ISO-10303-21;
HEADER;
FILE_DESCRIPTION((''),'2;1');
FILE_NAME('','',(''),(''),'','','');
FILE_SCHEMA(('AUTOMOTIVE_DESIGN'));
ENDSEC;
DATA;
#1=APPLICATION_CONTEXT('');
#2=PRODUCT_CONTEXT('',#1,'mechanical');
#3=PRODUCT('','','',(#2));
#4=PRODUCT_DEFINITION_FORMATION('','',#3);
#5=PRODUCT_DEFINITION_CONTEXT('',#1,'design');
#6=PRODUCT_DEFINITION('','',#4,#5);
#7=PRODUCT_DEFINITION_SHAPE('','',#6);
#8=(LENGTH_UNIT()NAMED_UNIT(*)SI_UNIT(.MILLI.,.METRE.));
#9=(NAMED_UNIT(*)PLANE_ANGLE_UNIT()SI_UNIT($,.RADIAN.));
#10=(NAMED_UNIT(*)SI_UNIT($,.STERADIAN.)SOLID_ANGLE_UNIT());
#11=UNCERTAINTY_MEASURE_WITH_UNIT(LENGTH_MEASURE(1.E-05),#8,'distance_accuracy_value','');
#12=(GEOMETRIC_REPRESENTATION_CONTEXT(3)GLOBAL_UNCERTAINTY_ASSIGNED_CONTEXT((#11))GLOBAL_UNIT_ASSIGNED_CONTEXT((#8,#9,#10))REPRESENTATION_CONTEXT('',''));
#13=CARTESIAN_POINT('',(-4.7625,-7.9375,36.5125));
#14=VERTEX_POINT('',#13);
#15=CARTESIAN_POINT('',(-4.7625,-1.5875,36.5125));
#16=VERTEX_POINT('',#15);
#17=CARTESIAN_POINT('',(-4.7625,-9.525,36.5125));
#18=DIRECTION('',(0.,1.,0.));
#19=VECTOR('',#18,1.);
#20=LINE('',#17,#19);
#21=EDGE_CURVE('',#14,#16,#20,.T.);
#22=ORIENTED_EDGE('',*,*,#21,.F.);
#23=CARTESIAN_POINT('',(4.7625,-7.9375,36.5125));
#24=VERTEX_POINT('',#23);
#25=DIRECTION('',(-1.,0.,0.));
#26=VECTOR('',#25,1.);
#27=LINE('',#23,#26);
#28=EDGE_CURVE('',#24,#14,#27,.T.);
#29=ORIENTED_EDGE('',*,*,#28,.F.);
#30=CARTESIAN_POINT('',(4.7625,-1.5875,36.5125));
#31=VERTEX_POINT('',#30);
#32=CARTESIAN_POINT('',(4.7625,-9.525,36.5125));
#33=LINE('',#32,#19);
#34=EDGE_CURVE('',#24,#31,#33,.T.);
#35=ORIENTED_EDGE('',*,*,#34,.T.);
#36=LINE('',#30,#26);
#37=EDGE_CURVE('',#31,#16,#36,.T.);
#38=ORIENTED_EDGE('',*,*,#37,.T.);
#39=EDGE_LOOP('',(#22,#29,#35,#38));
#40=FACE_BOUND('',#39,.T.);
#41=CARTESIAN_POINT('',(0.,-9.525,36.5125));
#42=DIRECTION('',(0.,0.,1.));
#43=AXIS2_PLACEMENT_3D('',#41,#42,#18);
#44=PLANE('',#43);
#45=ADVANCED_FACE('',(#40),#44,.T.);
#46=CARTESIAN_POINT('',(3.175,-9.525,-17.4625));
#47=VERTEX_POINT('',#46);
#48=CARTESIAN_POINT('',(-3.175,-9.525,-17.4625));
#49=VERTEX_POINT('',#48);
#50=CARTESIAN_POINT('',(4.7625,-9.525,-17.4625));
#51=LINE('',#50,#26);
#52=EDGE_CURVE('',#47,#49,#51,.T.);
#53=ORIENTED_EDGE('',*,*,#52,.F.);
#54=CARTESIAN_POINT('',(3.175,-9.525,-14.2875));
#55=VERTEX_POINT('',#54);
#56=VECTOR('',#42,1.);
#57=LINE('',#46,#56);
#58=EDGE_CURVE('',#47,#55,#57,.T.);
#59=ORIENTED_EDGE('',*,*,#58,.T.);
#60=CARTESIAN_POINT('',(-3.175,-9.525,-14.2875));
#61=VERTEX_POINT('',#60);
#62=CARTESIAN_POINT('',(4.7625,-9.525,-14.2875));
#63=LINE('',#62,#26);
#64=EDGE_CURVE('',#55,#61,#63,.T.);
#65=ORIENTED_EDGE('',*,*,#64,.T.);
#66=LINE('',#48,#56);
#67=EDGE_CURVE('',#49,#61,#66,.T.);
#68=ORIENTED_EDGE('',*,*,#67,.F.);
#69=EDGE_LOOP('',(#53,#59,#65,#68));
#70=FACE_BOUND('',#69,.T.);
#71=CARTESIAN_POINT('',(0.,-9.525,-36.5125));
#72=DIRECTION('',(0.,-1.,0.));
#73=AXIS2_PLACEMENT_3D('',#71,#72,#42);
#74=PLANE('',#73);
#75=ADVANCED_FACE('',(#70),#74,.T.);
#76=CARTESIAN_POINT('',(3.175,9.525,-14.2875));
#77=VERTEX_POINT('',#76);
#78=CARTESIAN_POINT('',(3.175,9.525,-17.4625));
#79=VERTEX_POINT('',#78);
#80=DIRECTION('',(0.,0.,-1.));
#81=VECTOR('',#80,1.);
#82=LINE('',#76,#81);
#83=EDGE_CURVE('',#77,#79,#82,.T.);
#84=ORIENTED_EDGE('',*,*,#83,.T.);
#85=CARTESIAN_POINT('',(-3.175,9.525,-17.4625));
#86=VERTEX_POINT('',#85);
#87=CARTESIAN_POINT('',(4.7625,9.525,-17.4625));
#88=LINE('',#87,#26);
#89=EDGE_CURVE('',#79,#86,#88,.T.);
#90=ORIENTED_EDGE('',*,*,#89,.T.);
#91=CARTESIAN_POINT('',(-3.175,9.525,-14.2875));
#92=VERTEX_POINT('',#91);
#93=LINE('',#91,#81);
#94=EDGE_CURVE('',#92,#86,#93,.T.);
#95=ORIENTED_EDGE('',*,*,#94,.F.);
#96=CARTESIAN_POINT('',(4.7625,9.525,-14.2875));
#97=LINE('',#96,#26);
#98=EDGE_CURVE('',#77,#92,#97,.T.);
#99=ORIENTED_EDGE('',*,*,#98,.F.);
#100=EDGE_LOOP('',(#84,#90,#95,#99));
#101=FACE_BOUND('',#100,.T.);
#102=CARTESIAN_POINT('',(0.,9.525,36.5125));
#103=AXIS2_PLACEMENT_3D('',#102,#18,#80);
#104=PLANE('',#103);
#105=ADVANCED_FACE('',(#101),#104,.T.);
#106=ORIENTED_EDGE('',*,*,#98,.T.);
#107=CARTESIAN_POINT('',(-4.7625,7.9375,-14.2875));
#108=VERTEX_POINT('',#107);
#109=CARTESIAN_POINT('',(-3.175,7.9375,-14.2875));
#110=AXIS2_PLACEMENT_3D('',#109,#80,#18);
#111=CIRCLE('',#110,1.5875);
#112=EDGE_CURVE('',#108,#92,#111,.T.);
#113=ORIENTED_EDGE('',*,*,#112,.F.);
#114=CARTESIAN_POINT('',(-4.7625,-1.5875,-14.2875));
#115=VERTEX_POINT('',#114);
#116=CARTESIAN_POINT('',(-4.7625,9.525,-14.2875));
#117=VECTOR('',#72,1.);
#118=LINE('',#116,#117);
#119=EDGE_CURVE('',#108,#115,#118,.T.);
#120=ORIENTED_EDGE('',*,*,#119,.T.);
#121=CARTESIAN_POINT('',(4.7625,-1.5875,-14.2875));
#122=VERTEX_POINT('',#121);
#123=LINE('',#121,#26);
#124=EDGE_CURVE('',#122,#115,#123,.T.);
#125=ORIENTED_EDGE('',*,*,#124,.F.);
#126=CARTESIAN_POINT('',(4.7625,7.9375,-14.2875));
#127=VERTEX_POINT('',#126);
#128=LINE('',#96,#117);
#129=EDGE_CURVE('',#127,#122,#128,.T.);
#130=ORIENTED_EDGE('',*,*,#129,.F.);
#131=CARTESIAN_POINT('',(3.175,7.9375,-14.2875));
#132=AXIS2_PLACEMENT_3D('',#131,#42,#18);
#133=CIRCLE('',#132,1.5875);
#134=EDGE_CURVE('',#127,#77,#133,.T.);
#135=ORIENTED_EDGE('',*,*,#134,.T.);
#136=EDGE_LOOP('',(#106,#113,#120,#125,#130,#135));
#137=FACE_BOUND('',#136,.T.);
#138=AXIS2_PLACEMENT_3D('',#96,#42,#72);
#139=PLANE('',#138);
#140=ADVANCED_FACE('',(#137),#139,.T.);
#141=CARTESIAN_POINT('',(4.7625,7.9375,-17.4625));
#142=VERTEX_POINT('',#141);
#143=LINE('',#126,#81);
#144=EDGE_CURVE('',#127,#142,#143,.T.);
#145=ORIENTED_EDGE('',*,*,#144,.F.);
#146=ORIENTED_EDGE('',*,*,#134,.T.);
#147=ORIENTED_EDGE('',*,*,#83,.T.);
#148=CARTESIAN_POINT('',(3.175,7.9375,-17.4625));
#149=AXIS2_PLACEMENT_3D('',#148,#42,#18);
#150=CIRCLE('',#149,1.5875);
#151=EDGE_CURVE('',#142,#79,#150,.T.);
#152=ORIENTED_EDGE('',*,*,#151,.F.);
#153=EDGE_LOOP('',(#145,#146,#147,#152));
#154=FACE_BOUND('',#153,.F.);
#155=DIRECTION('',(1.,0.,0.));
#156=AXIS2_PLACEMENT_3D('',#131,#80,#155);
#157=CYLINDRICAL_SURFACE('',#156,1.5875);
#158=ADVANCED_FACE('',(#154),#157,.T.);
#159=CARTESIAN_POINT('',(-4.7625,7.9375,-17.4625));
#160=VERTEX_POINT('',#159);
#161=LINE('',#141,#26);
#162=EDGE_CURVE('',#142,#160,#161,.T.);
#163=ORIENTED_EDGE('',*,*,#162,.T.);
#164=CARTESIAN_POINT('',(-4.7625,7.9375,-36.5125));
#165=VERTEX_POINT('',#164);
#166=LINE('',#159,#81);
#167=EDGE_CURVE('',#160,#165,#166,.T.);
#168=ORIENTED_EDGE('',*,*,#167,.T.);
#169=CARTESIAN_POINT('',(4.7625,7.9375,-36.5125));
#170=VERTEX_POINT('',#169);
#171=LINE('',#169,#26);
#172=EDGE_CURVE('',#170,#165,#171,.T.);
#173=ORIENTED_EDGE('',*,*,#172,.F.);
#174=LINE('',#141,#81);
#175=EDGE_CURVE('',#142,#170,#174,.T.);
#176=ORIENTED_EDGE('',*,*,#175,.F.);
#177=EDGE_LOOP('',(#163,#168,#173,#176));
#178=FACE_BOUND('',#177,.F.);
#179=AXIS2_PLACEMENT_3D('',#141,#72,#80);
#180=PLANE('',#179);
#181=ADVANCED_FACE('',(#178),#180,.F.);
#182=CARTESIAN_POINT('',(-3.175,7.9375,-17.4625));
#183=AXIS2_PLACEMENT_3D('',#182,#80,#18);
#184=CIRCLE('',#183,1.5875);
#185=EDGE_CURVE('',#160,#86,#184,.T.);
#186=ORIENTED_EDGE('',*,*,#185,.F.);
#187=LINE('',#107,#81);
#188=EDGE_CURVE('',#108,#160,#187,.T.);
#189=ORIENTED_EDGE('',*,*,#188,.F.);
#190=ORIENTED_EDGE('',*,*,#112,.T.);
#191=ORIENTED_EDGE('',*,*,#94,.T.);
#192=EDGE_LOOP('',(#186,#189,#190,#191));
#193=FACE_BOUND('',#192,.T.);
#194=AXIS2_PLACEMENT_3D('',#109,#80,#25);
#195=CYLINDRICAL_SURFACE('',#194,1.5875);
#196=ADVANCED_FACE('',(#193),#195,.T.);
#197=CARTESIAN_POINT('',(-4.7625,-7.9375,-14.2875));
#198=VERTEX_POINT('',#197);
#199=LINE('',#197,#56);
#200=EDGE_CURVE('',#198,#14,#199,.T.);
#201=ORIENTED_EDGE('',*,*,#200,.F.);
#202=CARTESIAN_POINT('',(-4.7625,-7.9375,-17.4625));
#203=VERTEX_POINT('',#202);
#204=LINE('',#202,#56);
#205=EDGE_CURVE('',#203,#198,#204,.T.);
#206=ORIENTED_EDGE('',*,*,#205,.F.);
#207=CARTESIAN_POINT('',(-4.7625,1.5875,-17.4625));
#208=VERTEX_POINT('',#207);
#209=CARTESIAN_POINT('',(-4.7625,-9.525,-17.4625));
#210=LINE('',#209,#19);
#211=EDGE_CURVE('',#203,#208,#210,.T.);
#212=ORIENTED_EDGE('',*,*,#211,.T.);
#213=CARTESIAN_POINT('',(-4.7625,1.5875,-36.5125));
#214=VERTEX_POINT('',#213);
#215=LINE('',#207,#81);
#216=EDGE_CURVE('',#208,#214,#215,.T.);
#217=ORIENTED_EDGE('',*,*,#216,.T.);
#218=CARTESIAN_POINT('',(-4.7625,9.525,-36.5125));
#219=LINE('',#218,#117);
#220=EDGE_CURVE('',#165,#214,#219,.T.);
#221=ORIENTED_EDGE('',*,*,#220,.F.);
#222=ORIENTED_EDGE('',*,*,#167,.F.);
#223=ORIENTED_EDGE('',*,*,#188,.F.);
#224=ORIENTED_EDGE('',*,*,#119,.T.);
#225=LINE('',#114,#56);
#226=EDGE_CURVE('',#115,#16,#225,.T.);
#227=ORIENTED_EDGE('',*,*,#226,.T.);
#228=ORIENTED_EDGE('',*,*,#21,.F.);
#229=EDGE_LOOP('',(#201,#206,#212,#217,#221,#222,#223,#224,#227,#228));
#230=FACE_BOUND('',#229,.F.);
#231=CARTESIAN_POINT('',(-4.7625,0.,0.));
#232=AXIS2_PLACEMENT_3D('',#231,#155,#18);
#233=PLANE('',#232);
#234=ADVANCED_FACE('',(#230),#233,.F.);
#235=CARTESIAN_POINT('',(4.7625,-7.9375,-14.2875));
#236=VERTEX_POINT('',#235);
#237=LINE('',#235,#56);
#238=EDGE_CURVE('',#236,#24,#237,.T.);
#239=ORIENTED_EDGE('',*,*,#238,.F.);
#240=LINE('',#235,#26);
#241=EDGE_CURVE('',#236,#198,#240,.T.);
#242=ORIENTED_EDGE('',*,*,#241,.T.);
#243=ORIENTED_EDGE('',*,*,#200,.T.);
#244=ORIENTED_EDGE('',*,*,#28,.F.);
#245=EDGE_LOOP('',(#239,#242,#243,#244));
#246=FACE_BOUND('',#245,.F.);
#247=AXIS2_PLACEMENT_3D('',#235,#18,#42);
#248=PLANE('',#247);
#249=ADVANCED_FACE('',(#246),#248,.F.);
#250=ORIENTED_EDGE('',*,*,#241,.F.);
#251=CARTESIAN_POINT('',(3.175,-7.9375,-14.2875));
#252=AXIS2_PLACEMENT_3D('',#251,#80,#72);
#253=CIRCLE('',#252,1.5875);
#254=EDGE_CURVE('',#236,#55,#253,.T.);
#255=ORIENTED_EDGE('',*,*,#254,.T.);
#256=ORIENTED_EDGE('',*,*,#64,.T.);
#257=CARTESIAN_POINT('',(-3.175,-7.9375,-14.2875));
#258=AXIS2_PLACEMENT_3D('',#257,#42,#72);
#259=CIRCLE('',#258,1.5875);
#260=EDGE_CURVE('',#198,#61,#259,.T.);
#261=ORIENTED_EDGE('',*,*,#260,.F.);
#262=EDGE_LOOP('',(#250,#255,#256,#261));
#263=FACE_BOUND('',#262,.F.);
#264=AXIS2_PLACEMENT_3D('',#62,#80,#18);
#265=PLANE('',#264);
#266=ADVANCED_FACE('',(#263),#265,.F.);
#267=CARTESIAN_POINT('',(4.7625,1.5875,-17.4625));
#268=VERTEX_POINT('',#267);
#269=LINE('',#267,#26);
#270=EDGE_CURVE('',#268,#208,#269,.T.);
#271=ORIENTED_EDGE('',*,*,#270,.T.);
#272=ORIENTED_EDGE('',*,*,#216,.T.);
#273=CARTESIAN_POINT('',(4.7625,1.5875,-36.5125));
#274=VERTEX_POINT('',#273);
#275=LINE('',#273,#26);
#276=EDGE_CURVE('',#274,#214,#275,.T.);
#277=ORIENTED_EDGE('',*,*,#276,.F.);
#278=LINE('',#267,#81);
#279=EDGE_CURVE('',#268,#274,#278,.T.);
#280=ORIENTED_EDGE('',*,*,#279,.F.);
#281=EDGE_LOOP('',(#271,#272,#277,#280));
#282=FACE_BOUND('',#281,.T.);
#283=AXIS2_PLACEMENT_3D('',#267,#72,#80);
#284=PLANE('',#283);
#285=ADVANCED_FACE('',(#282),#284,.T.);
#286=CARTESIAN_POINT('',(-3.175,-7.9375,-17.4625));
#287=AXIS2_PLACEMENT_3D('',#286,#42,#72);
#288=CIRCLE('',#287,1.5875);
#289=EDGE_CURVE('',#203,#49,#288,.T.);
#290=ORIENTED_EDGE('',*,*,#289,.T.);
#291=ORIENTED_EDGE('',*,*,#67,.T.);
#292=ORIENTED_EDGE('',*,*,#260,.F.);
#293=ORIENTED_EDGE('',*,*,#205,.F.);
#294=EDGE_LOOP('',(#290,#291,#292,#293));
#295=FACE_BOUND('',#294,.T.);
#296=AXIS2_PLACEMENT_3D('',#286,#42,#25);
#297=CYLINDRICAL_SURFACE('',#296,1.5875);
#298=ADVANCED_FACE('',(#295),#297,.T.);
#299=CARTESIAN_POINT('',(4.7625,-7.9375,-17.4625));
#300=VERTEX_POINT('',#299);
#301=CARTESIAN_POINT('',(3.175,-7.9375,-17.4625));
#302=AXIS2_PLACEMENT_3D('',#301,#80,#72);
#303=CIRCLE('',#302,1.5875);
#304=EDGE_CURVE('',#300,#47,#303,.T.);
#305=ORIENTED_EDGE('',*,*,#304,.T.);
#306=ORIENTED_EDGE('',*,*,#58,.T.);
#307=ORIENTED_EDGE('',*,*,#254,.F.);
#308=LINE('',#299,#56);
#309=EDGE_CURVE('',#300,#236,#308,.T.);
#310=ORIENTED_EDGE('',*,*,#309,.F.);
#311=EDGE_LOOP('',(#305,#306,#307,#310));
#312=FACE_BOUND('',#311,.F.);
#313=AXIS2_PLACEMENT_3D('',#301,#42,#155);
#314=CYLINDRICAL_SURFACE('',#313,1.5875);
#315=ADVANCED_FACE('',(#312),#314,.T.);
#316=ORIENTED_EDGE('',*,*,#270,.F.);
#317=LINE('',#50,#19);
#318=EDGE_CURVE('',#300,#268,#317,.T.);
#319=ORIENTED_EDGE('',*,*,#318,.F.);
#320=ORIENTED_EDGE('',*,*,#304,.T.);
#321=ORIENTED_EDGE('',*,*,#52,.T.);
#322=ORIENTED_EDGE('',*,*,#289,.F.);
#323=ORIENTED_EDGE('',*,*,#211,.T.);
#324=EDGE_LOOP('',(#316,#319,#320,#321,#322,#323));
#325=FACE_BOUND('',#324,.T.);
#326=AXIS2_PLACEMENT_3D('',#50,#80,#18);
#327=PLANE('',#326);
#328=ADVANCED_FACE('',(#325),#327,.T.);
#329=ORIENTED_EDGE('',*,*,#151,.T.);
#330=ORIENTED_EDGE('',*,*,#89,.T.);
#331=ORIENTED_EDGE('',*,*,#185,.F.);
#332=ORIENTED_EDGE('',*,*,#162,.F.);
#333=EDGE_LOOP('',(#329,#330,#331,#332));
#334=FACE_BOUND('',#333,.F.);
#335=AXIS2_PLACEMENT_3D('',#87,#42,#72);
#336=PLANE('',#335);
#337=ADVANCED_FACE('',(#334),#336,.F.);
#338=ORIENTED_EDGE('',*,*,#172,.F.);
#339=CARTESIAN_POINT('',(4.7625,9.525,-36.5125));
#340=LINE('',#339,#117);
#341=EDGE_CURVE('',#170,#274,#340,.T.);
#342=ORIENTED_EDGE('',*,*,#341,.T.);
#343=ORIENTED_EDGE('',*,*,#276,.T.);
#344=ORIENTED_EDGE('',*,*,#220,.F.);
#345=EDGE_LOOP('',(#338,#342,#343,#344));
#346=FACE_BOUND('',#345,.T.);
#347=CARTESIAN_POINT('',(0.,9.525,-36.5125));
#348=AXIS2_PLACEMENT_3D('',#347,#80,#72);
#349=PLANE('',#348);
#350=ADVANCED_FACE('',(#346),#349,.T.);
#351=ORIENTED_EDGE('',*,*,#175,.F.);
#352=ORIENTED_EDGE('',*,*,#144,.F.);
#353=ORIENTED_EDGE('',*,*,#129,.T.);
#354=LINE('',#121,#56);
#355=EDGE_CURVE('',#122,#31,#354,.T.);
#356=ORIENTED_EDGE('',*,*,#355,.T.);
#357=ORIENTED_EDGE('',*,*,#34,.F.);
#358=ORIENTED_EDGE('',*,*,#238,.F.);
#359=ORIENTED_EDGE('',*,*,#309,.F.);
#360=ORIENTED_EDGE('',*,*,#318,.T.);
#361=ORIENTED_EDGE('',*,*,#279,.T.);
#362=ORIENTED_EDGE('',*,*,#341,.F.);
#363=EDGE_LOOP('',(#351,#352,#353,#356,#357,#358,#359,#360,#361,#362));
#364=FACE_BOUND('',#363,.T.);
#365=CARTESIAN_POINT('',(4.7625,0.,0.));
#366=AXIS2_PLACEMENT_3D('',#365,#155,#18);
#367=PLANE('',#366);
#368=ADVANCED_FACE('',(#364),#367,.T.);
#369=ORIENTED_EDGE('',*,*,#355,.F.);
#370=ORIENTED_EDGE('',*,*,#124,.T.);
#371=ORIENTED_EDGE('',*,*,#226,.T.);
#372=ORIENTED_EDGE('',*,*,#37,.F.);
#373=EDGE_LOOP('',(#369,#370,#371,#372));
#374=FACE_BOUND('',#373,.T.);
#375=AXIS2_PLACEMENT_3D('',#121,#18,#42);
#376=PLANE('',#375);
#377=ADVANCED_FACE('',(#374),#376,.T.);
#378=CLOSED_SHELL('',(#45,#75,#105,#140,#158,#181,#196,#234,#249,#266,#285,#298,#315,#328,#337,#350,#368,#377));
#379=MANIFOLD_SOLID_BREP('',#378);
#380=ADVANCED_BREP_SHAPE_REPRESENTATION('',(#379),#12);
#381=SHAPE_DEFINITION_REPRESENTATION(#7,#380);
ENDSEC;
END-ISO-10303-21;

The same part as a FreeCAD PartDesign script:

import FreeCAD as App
import Part
import Sketcher

V = App.Vector
Q = App.Units.Quantity


def edges_at(feature, points):
    """Names of the edges that pass closest to the given points."""
    edges = feature.Shape.Edges
    near = lambda p: min(range(len(edges)), key=lambda i: edges[i].distToShape(Part.Vertex(*p))[0])
    return sorted({f"Edge{near(p) + 1}" for p in points})

doc = App.newDocument("Part")
body = doc.addObject("PartDesign::Body", "Body")

# Sketch on YZ plane
sketch1 = body.newObject("Sketcher::SketchObject", "Sketch")
sketch1.AttachmentSupport = (doc.getObject("YZ_Plane"), [""])
sketch1.MapMode = "FlatFace"
sketch1.addGeometry([
    Part.LineSegment(V(9.525, 36.5125, 0), V(-9.525, 36.5125, 0)),
    Part.LineSegment(V(-9.525, 36.5125, 0), V(-9.525, -36.5125, 0)),
    Part.LineSegment(V(-9.525, -36.5125, 0), V(9.525, -36.5125, 0)),
    Part.LineSegment(V(9.525, -36.5125, 0), V(9.525, 36.5125, 0)),
], False)
sketch1.addConstraint([
    Sketcher.Constraint("Coincident", 0, 2, 1, 1),
    Sketcher.Constraint("Coincident", 1, 2, 2, 1),
    Sketcher.Constraint("Coincident", 2, 2, 3, 1),
    Sketcher.Constraint("Coincident", 3, 2, 0, 1),
    Sketcher.Constraint("Horizontal", 0),
    Sketcher.Constraint("Vertical", 1),
    Sketcher.Constraint("Horizontal", 2),
    Sketcher.Constraint("Vertical", 3),
    Sketcher.Constraint("Symmetric", 0, 2, 2, 2, -1, 1),
    Sketcher.Constraint("DistanceX", 0, 2, 0, 1, Q("0.75 in")),
    Sketcher.Constraint("DistanceY", 1, 2, 1, 1, Q("2.875 in")),
])
pad1 = body.newObject("PartDesign::Pad", "Pad")
pad1.Profile = sketch1
pad1.Length = Q("0.375 in")
pad1.Midplane = True

# Sketch on YZ plane
sketch2 = body.newObject("Sketcher::SketchObject", "Sketch001")
sketch2.AttachmentSupport = (doc.getObject("YZ_Plane"), [""])
sketch2.MapMode = "FlatFace"
sketch2.AttachmentOffset = App.Placement(V(0, 0, 0.1875 * 25.4), App.Rotation())
sketch2.addGeometry([
    Part.LineSegment(V(9.525, -14.2875, 0), V(9.525, 36.5125, 0)),
    Part.LineSegment(V(9.525, 36.5125, 0), V(-1.5875, 36.5125, 0)),
    Part.LineSegment(V(-1.5875, 36.5125, 0), V(-1.5875, -14.2875, 0)),
    Part.LineSegment(V(-1.5875, -14.2875, 0), V(9.525, -14.2875, 0)),
], False)
sketch2.addConstraint([
    Sketcher.Constraint("Coincident", 0, 2, 1, 1),
    Sketcher.Constraint("Coincident", 1, 2, 2, 1),
    Sketcher.Constraint("Coincident", 2, 2, 3, 1),
    Sketcher.Constraint("Coincident", 3, 2, 0, 1),
    Sketcher.Constraint("Vertical", 0),
    Sketcher.Constraint("Horizontal", 1),
    Sketcher.Constraint("Vertical", 2),
    Sketcher.Constraint("Horizontal", 3),
    Sketcher.Constraint("DistanceY", 0, 1, 0, 2, Q("2 in")),
    Sketcher.Constraint("DistanceX", 1, 2, 1, 1, Q("0.4375 in")),
    Sketcher.Constraint("DistanceX", -1, 1, 0, 2, Q("0.375 in")),
    Sketcher.Constraint("DistanceY", -1, 1, 0, 2, Q("1.4375 in")),
])
pocket1 = body.newObject("PartDesign::Pocket", "Pocket")
pocket1.Profile = sketch2
pocket1.Length = Q("0.375 in")

# Sketch on YZ plane
sketch3 = body.newObject("Sketcher::SketchObject", "Sketch002")
sketch3.AttachmentSupport = (doc.getObject("YZ_Plane"), [""])
sketch3.MapMode = "FlatFace"
sketch3.AttachmentOffset = App.Placement(V(0, 0, 0.1875 * 25.4), App.Rotation())
sketch3.addGeometry([
    Part.LineSegment(V(-9.525, -17.4625, 0), V(-9.525, -36.5125, 0)),
    Part.LineSegment(V(-9.525, -36.5125, 0), V(1.5875, -36.5125, 0)),
    Part.LineSegment(V(1.5875, -36.5125, 0), V(1.5875, -17.4625, 0)),
    Part.LineSegment(V(1.5875, -17.4625, 0), V(-9.525, -17.4625, 0)),
], False)
sketch3.addConstraint([
    Sketcher.Constraint("Coincident", 0, 2, 1, 1),
    Sketcher.Constraint("Coincident", 1, 2, 2, 1),
    Sketcher.Constraint("Coincident", 2, 2, 3, 1),
    Sketcher.Constraint("Coincident", 3, 2, 0, 1),
    Sketcher.Constraint("Vertical", 0),
    Sketcher.Constraint("Horizontal", 1),
    Sketcher.Constraint("Vertical", 2),
    Sketcher.Constraint("Horizontal", 3),
    Sketcher.Constraint("DistanceY", 0, 2, 0, 1, Q("0.75 in")),
    Sketcher.Constraint("DistanceX", 1, 1, 1, 2, Q("0.4375 in")),
    Sketcher.Constraint("DistanceX", 0, 2, -1, 1, Q("0.375 in")),
    Sketcher.Constraint("DistanceY", 0, 2, -1, 1, Q("1.4375 in")),
])
pocket2 = body.newObject("PartDesign::Pocket", "Pocket001")
pocket2.Profile = sketch3
pocket2.Length = Q("0.375 in")

# Sketch on YZ plane
sketch4 = body.newObject("Sketcher::SketchObject", "Sketch003")
sketch4.AttachmentSupport = (doc.getObject("YZ_Plane"), [""])
sketch4.MapMode = "FlatFace"
sketch4.AttachmentOffset = App.Placement(V(0, 0, 0.1875 * 25.4), App.Rotation())
sketch4.addGeometry([
    Part.LineSegment(V(-7.9375, -14.2875, 0), V(-7.9375, 36.5125, 0)),
    Part.LineSegment(V(-7.9375, 36.5125, 0), V(-9.525, 36.5125, 0)),
    Part.LineSegment(V(-9.525, 36.5125, 0), V(-9.525, -14.2875, 0)),
    Part.LineSegment(V(-9.525, -14.2875, 0), V(-7.9375, -14.2875, 0)),
], False)
sketch4.addConstraint([
    Sketcher.Constraint("Coincident", 0, 2, 1, 1),
    Sketcher.Constraint("Coincident", 1, 2, 2, 1),
    Sketcher.Constraint("Coincident", 2, 2, 3, 1),
    Sketcher.Constraint("Coincident", 3, 2, 0, 1),
    Sketcher.Constraint("Vertical", 0),
    Sketcher.Constraint("Horizontal", 1),
    Sketcher.Constraint("Vertical", 2),
    Sketcher.Constraint("Horizontal", 3),
    Sketcher.Constraint("DistanceY", 0, 1, 0, 2, Q("2 in")),
    Sketcher.Constraint("DistanceX", 1, 2, 1, 1, Q("0.0625 in")),
    Sketcher.Constraint("DistanceX", 0, 2, -1, 1, Q("0.3125 in")),
    Sketcher.Constraint("DistanceY", -1, 1, 0, 2, Q("1.4375 in")),
])
pocket3 = body.newObject("PartDesign::Pocket", "Pocket002")
pocket3.Profile = sketch4
pocket3.Length = Q("0.375 in")

# Sketch on YZ plane
sketch5 = body.newObject("Sketcher::SketchObject", "Sketch004")
sketch5.AttachmentSupport = (doc.getObject("YZ_Plane"), [""])
sketch5.MapMode = "FlatFace"
sketch5.AttachmentOffset = App.Placement(V(0, 0, 0.1875 * 25.4), App.Rotation())
sketch5.addGeometry([
    Part.LineSegment(V(7.9375, -36.5125, 0), V(9.525, -36.5125, 0)),
    Part.LineSegment(V(9.525, -36.5125, 0), V(9.525, -17.4625, 0)),
    Part.LineSegment(V(9.525, -17.4625, 0), V(7.9375, -17.4625, 0)),
    Part.LineSegment(V(7.9375, -17.4625, 0), V(7.9375, -36.5125, 0)),
], False)
sketch5.addConstraint([
    Sketcher.Constraint("Coincident", 0, 2, 1, 1),
    Sketcher.Constraint("Coincident", 1, 2, 2, 1),
    Sketcher.Constraint("Coincident", 2, 2, 3, 1),
    Sketcher.Constraint("Coincident", 3, 2, 0, 1),
    Sketcher.Constraint("Horizontal", 0),
    Sketcher.Constraint("Vertical", 1),
    Sketcher.Constraint("Horizontal", 2),
    Sketcher.Constraint("Vertical", 3),
    Sketcher.Constraint("DistanceY", 1, 1, 1, 2, Q("0.75 in")),
    Sketcher.Constraint("DistanceX", 0, 1, 0, 2, Q("0.0625 in")),
    Sketcher.Constraint("DistanceX", -1, 1, 0, 2, Q("0.375 in")),
    Sketcher.Constraint("DistanceY", 0, 2, -1, 1, Q("1.4375 in")),
])
pocket4 = body.newObject("PartDesign::Pocket", "Pocket003")
pocket4.Profile = sketch5
pocket4.Length = Q("0.375 in")
doc.recompute()

fillet = body.newObject("PartDesign::Fillet", "Fillet")
fillet.Base = (pocket4, edges_at(pocket4, [
    (4.763, 9.525, -15.875),
    (-4.763, 9.525, -15.875),
    (4.763, -9.525, -15.875),
    (-4.763, -9.525, -15.875),
]))
fillet.Radius = Q("0.0625 in")

doc.recompute()
